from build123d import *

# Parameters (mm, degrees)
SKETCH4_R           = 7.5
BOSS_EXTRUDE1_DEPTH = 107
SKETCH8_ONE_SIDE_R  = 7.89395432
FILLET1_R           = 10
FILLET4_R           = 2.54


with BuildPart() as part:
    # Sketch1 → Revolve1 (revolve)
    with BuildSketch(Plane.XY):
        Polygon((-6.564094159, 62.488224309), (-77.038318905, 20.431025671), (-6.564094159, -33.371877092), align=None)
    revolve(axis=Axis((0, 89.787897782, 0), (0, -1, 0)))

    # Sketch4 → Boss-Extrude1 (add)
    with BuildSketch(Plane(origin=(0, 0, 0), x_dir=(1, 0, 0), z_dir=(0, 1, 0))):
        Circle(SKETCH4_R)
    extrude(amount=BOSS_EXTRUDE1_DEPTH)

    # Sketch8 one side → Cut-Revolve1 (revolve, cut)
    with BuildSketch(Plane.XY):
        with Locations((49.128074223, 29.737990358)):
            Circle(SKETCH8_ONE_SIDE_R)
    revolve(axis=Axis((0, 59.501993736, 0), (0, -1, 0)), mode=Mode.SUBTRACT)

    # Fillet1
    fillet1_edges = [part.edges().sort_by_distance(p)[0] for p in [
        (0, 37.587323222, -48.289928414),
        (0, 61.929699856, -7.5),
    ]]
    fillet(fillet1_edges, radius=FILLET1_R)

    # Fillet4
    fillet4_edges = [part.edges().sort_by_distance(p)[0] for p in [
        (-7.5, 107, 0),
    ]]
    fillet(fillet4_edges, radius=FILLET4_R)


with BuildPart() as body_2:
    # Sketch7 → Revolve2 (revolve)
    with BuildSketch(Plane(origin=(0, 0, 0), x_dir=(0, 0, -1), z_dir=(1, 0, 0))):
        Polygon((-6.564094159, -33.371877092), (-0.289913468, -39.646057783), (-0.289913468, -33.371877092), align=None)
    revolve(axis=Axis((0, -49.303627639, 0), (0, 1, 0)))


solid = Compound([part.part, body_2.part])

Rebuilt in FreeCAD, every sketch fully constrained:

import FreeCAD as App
import Part
import Sketcher

V = App.Vector
Q = App.Units.Quantity


def edges_at(feature, points):
    """Names of the edges that pass closest to the given points."""
    edges = feature.Shape.Edges
    near = lambda p: min(range(len(edges)), key=lambda i: edges[i].distToShape(Part.Vertex(*p))[0])
    return sorted({f"Edge{near(p) + 1}" for p in points})

doc = App.newDocument("Part")
body = doc.addObject("PartDesign::Body", "Body")

# Sketch on XY plane
sketch1 = doc.addObject("Sketcher::SketchObject", "Sketch")
body.addObject(sketch1)
sketch1.AttachmentSupport = (doc.XY_Plane, [""])
sketch1.MapMode = "FlatFace"
sketch1.addGeometry([
    Part.LineSegment(V(-7, 62, 0), V(-77, 20, 0)),
    Part.LineSegment(V(-77, 20, 0), V(-7, -33, 0)),
    Part.LineSegment(V(-7, -33, 0), V(-7, 62, 0)),
], False)
sketch1.addConstraint([
    Sketcher.Constraint("Coincident", 0, 2, 1, 1),
    Sketcher.Constraint("Coincident", 1, 2, 2, 1),
    Sketcher.Constraint("Coincident", 2, 2, 0, 1),
    Sketcher.Constraint("Vertical", 2),
    Sketcher.Constraint("DistanceY", 2, 1, 2, 2, Q("95.860101 mm")),
    Sketcher.Constraint("DistanceY", 0, 2, 2, 2, Q("42.057199 mm")),
    Sketcher.Constraint("Distance", 0, Q("82.069631 mm")),
    Sketcher.Constraint("DistanceX", 0, 2, -1, 1, Q("77.038319 mm")),
    Sketcher.Constraint("DistanceY", -1, 1, 0, 2, Q("20.431026 mm")),
])
revolution = doc.addObject("PartDesign::Revolution", "Revolution")
body.addObject(revolution)
revolution.Profile = sketch1
revolution.ReferenceAxis = (sketch1, ["V_Axis"])
revolution.Angle = 360

# Sketch on XZ plane
sketch2 = doc.addObject("Sketcher::SketchObject", "Sketch001")
body.addObject(sketch2)
sketch2.AttachmentSupport = (doc.XZ_Plane, [""])
sketch2.MapMode = "FlatFace"
sketch2.addGeometry(Part.Circle(V(0, 0, 0), V(0, 0, 1), 8), False)
sketch2.addConstraint([
    Sketcher.Constraint("Coincident", 0, 3, -1, 1),
    Sketcher.Constraint("Diameter", 0, Q("15 mm")),
])
pad1 = doc.addObject("PartDesign::Pad", "Pad")
body.addObject(pad1)
pad1.Profile = sketch2
pad1.Length = 107
pad1.Reversed = True

# Sketch on XY plane
sketch3 = doc.addObject("Sketcher::SketchObject", "Sketch002")
body.addObject(sketch3)
sketch3.AttachmentSupport = (doc.XY_Plane, [""])
sketch3.MapMode = "FlatFace"
sketch3.addGeometry(Part.Circle(V(49, 30, 0), V(0, 0, 1), 8), False)
sketch3.addConstraint([
    Sketcher.Constraint("Diameter", 0, Q("15.787909 mm")),
    Sketcher.Constraint("DistanceY", -1, 1, 0, 3, Q("29.73799 mm")),
    Sketcher.Constraint("DistanceX", -1, 1, 0, 3, Q("49.128074 mm")),
])
groove = doc.addObject("PartDesign::Groove", "Groove")
body.addObject(groove)
groove.Profile = sketch3
groove.ReferenceAxis = (sketch3, ["V_Axis"])
groove.Angle = 360
doc.recompute()

fillet = doc.addObject("PartDesign::Fillet", "Fillet")
body.addObject(fillet)
fillet.Base = (groove, edges_at(groove, [(0, 37.587, -48.29), (0, 61.93, -7.5)]))
fillet.Radius = 10
doc.recompute()

fillet2 = doc.addObject("PartDesign::Fillet", "Fillet001")
body.addObject(fillet2)
fillet2.Base = (fillet, edges_at(fillet, [(-7.5, 107, 0)]))
fillet2.Radius = 2.54
body2 = doc.addObject("PartDesign::Body", "Body001")

# Sketch on YZ plane
sketch4 = doc.addObject("Sketcher::SketchObject", "Sketch003")
body2.addObject(sketch4)
sketch4.AttachmentSupport = (doc.getObject("YZ_Plane001"), [""])
sketch4.MapMode = "FlatFace"
sketch4.addGeometry([
    Part.LineSegment(V(-33, 7, 0), V(-40, 0, 0)),
    Part.LineSegment(V(-40, 0, 0), V(-33, 0, 0)),
    Part.LineSegment(V(-33, 0, 0), V(-33, 7, 0)),
], False)
sketch4.addConstraint([
    Sketcher.Constraint("Coincident", 0, 2, 1, 1),
    Sketcher.Constraint("Coincident", 1, 2, 2, 1),
    Sketcher.Constraint("Coincident", 2, 2, 0, 1),
    Sketcher.Constraint("Horizontal", 1),
    Sketcher.Constraint("Vertical", 2),
    Sketcher.Constraint("Equal", 1, 2),
    Sketcher.Constraint("DistanceX", 1, 1, 1, 2, Q("6.274181 mm")),
    Sketcher.Constraint("DistanceX", 0, 2, -1, 1, Q("39.646058 mm")),
    Sketcher.Constraint("DistanceY", -1, 1, 0, 2, Q("0.289913 mm")),
])
revolution2 = doc.addObject("PartDesign::Revolution", "Revolution001")
body2.addObject(revolution2)
revolution2.Profile = sketch4
revolution2.ReferenceAxis = (sketch4, ["H_Axis"])
revolution2.Angle = 360

doc.recompute()
